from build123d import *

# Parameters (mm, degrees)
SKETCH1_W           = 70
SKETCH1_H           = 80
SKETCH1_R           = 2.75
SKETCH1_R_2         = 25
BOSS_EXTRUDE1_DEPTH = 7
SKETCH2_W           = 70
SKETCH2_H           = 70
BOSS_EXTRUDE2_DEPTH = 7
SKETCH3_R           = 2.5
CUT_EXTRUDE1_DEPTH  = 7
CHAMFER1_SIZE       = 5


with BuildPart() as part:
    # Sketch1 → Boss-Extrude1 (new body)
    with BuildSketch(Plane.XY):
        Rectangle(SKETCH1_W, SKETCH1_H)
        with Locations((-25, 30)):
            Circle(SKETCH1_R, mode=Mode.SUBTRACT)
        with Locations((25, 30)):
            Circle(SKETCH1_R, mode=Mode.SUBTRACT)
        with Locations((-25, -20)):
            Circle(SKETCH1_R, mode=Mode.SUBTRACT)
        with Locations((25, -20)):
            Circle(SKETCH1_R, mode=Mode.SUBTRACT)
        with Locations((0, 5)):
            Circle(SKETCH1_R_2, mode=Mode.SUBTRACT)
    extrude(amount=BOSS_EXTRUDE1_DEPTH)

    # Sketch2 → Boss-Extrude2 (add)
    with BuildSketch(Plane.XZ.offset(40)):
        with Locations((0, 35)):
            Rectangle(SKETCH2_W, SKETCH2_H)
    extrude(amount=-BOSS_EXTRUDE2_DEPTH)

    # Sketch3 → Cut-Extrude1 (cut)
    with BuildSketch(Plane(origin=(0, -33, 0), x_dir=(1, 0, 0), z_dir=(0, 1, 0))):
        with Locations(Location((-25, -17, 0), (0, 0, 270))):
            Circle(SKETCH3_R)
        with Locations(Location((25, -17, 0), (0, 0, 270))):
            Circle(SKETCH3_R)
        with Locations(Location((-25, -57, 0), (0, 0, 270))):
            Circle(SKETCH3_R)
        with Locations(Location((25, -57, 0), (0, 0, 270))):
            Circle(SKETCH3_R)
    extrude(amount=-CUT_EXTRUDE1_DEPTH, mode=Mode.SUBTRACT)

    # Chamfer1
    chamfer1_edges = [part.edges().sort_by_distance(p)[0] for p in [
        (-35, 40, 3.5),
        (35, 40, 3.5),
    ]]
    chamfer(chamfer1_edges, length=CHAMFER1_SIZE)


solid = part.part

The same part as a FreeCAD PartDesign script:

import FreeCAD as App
import Part
import Sketcher
from FreeCAD import Vector


def edges_at(feature, points):
    """Names of the edges that pass closest to the given points."""
    edges = feature.Shape.Edges
    near = lambda p: min(range(len(edges)), key=lambda i: edges[i].distToShape(Part.Vertex(*p))[0])
    return sorted({f"Edge{near(p) + 1}" for p in points})

doc = App.newDocument("Part")
params = doc.addObject("Spreadsheet::Sheet", "Params")
for row, (alias, value) in enumerate([
    ("sketch1_diameter", "50 mm"),
    ("sketch1_diameter2", "5.5 mm"),
    ("sketch1_width", "70 mm"),
    ("sketch1_height", "80 mm"),
    ("pad1_length", "7 mm"),
    ("sketch2_width", "70 mm"),
    ("pad2_length", "7 mm"),
    ("sketch3_diameter", "5 mm"),
    ("pocket1_length", "7 mm"),
    ("chamfer_size", "5 mm"),
], start=1):
    params.set(f"A{row}", alias)
    params.set(f"B{row}", "=" + value)
    params.setAlias(f"B{row}", alias)

body = doc.addObject("PartDesign::Body", "Body")

sketch1 = doc.addObject("Sketcher::SketchObject", "Sketch")
body.addObject(sketch1)
sketch1.AttachmentSupport = (doc.XY_Plane, [""])
sketch1.MapMode = "FlatFace"
sketch1.addGeometry(Part.LineSegment(Vector(-35, 40, 0), Vector(-35, -40, 0)), False)
sketch1.addGeometry(Part.LineSegment(Vector(-35, -40, 0), Vector(35, -40, 0)), False)
sketch1.addGeometry(Part.LineSegment(Vector(35, -40, 0), Vector(35, 40, 0)), False)
sketch1.addGeometry(Part.LineSegment(Vector(35, 40, 0), Vector(-35, 40, 0)), False)
sketch1.addGeometry(Part.Circle(Vector(-25, -20, 0), Vector(0, 0, 1), 2.8), False)
sketch1.addGeometry(Part.Circle(Vector(25, -20, 0), Vector(0, 0, 1), 2.8), False)
sketch1.addGeometry(Part.Circle(Vector(-25, 30, 0), Vector(0, 0, 1), 2.8), False)
sketch1.addGeometry(Part.Circle(Vector(0, 5, 0), Vector(0, 0, 1), 25), False)
sketch1.addGeometry(Part.Circle(Vector(25, 30, 0), Vector(0, 0, 1), 2.8), False)
sketch1.addConstraint(Sketcher.Constraint("Coincident", 0, 2, 1, 1))
sketch1.addConstraint(Sketcher.Constraint("Coincident", 1, 2, 2, 1))
sketch1.addConstraint(Sketcher.Constraint("Coincident", 2, 2, 3, 1))
sketch1.addConstraint(Sketcher.Constraint("Coincident", 3, 2, 0, 1))
sketch1.addConstraint(Sketcher.Constraint("Vertical", 0))
sketch1.addConstraint(Sketcher.Constraint("Horizontal", 1))
sketch1.addConstraint(Sketcher.Constraint("Vertical", 2))
sketch1.addConstraint(Sketcher.Constraint("Horizontal", 3))
sketch1.addConstraint(Sketcher.Constraint("Equal", 4, 5))
sketch1.addConstraint(Sketcher.Constraint("Equal", 5, 6))
sketch1.addConstraint(Sketcher.Constraint("Equal", 6, 8))
sketch1.addConstraint(Sketcher.Constraint("Symmetric", 0, 2, 2, 2, -1, 1))
sketch1.addConstraint(Sketcher.Constraint("Symmetric", 4, 3, 5, 3, -2))
sketch1.addConstraint(Sketcher.Constraint("Symmetric", 6, 3, 8, 3, -2))
sketch1.addConstraint(Sketcher.Constraint("PointOnObject", 7, 3, -2))
sketch1.addConstraint(Sketcher.Constraint("Vertical", 4, 3, 6, 3))
sketch1.addConstraint(Sketcher.Constraint("Diameter", 7, 50.0))
sketch1.addConstraint(Sketcher.Constraint("Diameter", 4, 5.5))
sketch1.addConstraint(Sketcher.Constraint("DistanceX", 1, 1, 1, 2, 70.0))
sketch1.addConstraint(Sketcher.Constraint("DistanceY", 0, 2, 0, 1, 80.0))
sketch1.addConstraint(Sketcher.Constraint("DistanceX", 4, 3, -1, 1, 25.0))
sketch1.addConstraint(Sketcher.Constraint("DistanceY", 4, 3, -1, 1, 20.0))
sketch1.addConstraint(Sketcher.Constraint("DistanceY", -1, 1, 6, 3, 30.0))
sketch1.addConstraint(Sketcher.Constraint("DistanceY", -1, 1, 7, 3, 5.0))
sketch1.setExpression("Constraints[16]", "Params.sketch1_diameter")
sketch1.setExpression("Constraints[17]", "Params.sketch1_diameter2")
sketch1.setExpression("Constraints[18]", "Params.sketch1_width")
sketch1.setExpression("Constraints[19]", "Params.sketch1_height")
pad1 = doc.addObject("PartDesign::Pad", "Pad")
body.addObject(pad1)
pad1.Profile = sketch1
pad1.setExpression("Length", "Params.pad1_length")

sketch2 = doc.addObject("Sketcher::SketchObject", "Sketch001")
body.addObject(sketch2)
sketch2.AttachmentSupport = (doc.XZ_Plane, [""])
sketch2.MapMode = "FlatFace"
sketch2.AttachmentOffset = App.Placement(Vector(0, 0, 40), App.Rotation())
sketch2.addGeometry(Part.LineSegment(Vector(-35, 70, 0), Vector(-35, 0, 0)), False)
sketch2.addGeometry(Part.LineSegment(Vector(-35, 0, 0), Vector(35, 0, 0)), False)
sketch2.addGeometry(Part.LineSegment(Vector(35, 0, 0), Vector(35, 70, 0)), False)
sketch2.addGeometry(Part.LineSegment(Vector(35, 70, 0), Vector(-35, 70, 0)), False)
sketch2.addConstraint(Sketcher.Constraint("Coincident", 0, 2, 1, 1))
sketch2.addConstraint(Sketcher.Constraint("Coincident", 1, 2, 2, 1))
sketch2.addConstraint(Sketcher.Constraint("Coincident", 2, 2, 3, 1))
sketch2.addConstraint(Sketcher.Constraint("Coincident", 3, 2, 0, 1))
sketch2.addConstraint(Sketcher.Constraint("Vertical", 0))
sketch2.addConstraint(Sketcher.Constraint("Horizontal", 1))
sketch2.addConstraint(Sketcher.Constraint("Vertical", 2))
sketch2.addConstraint(Sketcher.Constraint("Horizontal", 3))
sketch2.addConstraint(Sketcher.Constraint("Symmetric", 0, 2, 1, 2, -1, 1))
sketch2.addConstraint(Sketcher.Constraint("Equal", 3, 0))
sketch2.addConstraint(Sketcher.Constraint("DistanceX", 1, 1, 1, 2, 70.0))
sketch2.setExpression("Constraints[10]", "Params.sketch2_width")
pad2 = doc.addObject("PartDesign::Pad", "Pad001")
body.addObject(pad2)
pad2.Profile = sketch2
pad2.setExpression("Length", "Params.pad2_length")
pad2.Reversed = True

sketch3 = doc.addObject("Sketcher::SketchObject", "Sketch002")
body.addObject(sketch3)
sketch3.AttachmentSupport = (doc.XZ_Plane, [""])
sketch3.MapMode = "FlatFace"
sketch3.AttachmentOffset = App.Placement(Vector(0, 0, 33), App.Rotation())
sketch3.addGeometry(Part.Circle(Vector(-25, 17, 0), Vector(0, 0, 1), 2.5), False)
sketch3.addGeometry(Part.Circle(Vector(25, 17, 0), Vector(0, 0, 1), 2.5), False)
sketch3.addGeometry(Part.Circle(Vector(-25, 57, 0), Vector(0, 0, 1), 2.5), False)
sketch3.addGeometry(Part.Circle(Vector(25, 57, 0), Vector(0, 0, 1), 2.5), False)
sketch3.addConstraint(Sketcher.Constraint("Equal", 0, 1))
sketch3.addConstraint(Sketcher.Constraint("Equal", 1, 2))
sketch3.addConstraint(Sketcher.Constraint("Equal", 2, 3))
sketch3.addConstraint(Sketcher.Constraint("Symmetric", 0, 3, 1, 3, -2))
sketch3.addConstraint(Sketcher.Constraint("Symmetric", 2, 3, 3, 3, -2))
sketch3.addConstraint(Sketcher.Constraint("Vertical", 0, 3, 2, 3))
sketch3.addConstraint(Sketcher.Constraint("Diameter", 0, 5.0))
sketch3.addConstraint(Sketcher.Constraint("DistanceX", 0, 3, -1, 1, 25.0))
sketch3.addConstraint(Sketcher.Constraint("DistanceY", -1, 1, 0, 3, 17.0))
sketch3.addConstraint(Sketcher.Constraint("DistanceY", -1, 1, 2, 3, 57.0))
sketch3.setExpression("Constraints[6]", "Params.sketch3_diameter")
pocket1 = doc.addObject("PartDesign::Pocket", "Pocket")
body.addObject(pocket1)
pocket1.Profile = sketch3
pocket1.setExpression("Length", "Params.pocket1_length")
pocket1.Reversed = True
doc.recompute()

chamfer = doc.addObject("PartDesign::Chamfer", "Chamfer")
body.addObject(chamfer)
chamfer.Base = (pocket1, edges_at(pocket1, [(-35, 40, 3.5), (35, 40, 3.5)]))
chamfer.setExpression("Size", "Params.chamfer_size")

doc.recompute()
